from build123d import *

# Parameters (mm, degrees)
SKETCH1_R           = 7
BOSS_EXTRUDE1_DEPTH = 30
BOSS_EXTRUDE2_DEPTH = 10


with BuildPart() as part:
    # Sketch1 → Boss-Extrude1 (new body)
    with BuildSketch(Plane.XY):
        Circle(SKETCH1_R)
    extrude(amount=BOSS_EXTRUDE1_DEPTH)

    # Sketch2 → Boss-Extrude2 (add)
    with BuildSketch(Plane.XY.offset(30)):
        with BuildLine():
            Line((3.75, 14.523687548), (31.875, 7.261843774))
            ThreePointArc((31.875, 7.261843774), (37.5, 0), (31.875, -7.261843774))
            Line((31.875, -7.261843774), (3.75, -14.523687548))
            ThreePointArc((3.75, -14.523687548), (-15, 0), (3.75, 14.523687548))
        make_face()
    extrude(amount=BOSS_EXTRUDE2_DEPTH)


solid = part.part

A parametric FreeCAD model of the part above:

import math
import FreeCAD as App
import Part
import Sketcher
from FreeCAD import Vector

doc = App.newDocument("Part")
params = doc.addObject("Spreadsheet::Sheet", "Params")
for row, (alias, value) in enumerate([
    ("sketch1_diameter", "14 mm"),
    ("pad1_length", "30 mm"),
    ("sketch2_radius", "15 mm"),
    ("sketch2_radius2", "7.5 mm"),
    ("pad2_length", "10 mm"),
], start=1):
    params.set(f"A{row}", alias)
    params.set(f"B{row}", "=" + value)
    params.setAlias(f"B{row}", alias)

body = doc.addObject("PartDesign::Body", "Body")

# Sketch on XY plane
sketch1 = body.newObject("Sketcher::SketchObject", "Sketch")
sketch1.AttachmentSupport = (doc.getObject("XY_Plane"), [""])
sketch1.MapMode = "FlatFace"
sketch1.addGeometry(Part.Circle(Vector(0, 0, 0), Vector(0, 0, 1), 7), False)
sketch1.addConstraint([
    Sketcher.Constraint("Coincident", 0, 3, -1, 1),
    Sketcher.Constraint("Diameter", 0, 14.0),
])
sketch1.setExpression("Constraints[1]", "Params.sketch1_diameter")
pad1 = body.newObject("PartDesign::Pad", "Pad")
pad1.Profile = sketch1
pad1.setExpression("Length", "Params.pad1_length")

# Sketch on XY plane
sketch2 = body.newObject("Sketcher::SketchObject", "Sketch001")
sketch2.AttachmentSupport = (doc.getObject("XY_Plane"), [""])
sketch2.MapMode = "FlatFace"
sketch2.AttachmentOffset = App.Placement(Vector(0, 0, 30), App.Rotation())
sketch2.addGeometry([
    Part.LineSegment(Vector(32, 7, 0), Vector(4, 15, 0)),
    Part.ArcOfCircle(Part.Circle(Vector(0, 0, 0), Vector(0, 0, 1), 15), math.radians(76), math.radians(284)),
    Part.LineSegment(Vector(4, -15, 0), Vector(32, -7, 0)),
    Part.ArcOfCircle(Part.Circle(Vector(30, 0, 0), Vector(0, 0, 1), 8), math.radians(-76), math.radians(76)),
], False)
sketch2.addConstraint([
    Sketcher.Constraint("Tangent", 0, 2, 1, 1),
    Sketcher.Constraint("Tangent", 1, 2, 2, 1),
    Sketcher.Constraint("Tangent", 2, 2, 3, 1),
    Sketcher.Constraint("Tangent", 3, 2, 0, 1),
    Sketcher.Constraint("Coincident", 1, 3, -1, 1),
    Sketcher.Constraint("PointOnObject", 3, 3, -1),
    Sketcher.Constraint("Radius", 1, 15.0),
    Sketcher.Constraint("Radius", 3, 7.5),
    Sketcher.Constraint("DistanceX", -1, 1, 3, 3, 30.0),
])
sketch2.setExpression("Constraints[6]", "Params.sketch2_radius")
sketch2.setExpression("Constraints[7]", "Params.sketch2_radius2")
pad2 = body.newObject("PartDesign::Pad", "Pad001")
pad2.Profile = sketch2
pad2.setExpression("Length", "Params.pad2_length")

doc.recompute()
